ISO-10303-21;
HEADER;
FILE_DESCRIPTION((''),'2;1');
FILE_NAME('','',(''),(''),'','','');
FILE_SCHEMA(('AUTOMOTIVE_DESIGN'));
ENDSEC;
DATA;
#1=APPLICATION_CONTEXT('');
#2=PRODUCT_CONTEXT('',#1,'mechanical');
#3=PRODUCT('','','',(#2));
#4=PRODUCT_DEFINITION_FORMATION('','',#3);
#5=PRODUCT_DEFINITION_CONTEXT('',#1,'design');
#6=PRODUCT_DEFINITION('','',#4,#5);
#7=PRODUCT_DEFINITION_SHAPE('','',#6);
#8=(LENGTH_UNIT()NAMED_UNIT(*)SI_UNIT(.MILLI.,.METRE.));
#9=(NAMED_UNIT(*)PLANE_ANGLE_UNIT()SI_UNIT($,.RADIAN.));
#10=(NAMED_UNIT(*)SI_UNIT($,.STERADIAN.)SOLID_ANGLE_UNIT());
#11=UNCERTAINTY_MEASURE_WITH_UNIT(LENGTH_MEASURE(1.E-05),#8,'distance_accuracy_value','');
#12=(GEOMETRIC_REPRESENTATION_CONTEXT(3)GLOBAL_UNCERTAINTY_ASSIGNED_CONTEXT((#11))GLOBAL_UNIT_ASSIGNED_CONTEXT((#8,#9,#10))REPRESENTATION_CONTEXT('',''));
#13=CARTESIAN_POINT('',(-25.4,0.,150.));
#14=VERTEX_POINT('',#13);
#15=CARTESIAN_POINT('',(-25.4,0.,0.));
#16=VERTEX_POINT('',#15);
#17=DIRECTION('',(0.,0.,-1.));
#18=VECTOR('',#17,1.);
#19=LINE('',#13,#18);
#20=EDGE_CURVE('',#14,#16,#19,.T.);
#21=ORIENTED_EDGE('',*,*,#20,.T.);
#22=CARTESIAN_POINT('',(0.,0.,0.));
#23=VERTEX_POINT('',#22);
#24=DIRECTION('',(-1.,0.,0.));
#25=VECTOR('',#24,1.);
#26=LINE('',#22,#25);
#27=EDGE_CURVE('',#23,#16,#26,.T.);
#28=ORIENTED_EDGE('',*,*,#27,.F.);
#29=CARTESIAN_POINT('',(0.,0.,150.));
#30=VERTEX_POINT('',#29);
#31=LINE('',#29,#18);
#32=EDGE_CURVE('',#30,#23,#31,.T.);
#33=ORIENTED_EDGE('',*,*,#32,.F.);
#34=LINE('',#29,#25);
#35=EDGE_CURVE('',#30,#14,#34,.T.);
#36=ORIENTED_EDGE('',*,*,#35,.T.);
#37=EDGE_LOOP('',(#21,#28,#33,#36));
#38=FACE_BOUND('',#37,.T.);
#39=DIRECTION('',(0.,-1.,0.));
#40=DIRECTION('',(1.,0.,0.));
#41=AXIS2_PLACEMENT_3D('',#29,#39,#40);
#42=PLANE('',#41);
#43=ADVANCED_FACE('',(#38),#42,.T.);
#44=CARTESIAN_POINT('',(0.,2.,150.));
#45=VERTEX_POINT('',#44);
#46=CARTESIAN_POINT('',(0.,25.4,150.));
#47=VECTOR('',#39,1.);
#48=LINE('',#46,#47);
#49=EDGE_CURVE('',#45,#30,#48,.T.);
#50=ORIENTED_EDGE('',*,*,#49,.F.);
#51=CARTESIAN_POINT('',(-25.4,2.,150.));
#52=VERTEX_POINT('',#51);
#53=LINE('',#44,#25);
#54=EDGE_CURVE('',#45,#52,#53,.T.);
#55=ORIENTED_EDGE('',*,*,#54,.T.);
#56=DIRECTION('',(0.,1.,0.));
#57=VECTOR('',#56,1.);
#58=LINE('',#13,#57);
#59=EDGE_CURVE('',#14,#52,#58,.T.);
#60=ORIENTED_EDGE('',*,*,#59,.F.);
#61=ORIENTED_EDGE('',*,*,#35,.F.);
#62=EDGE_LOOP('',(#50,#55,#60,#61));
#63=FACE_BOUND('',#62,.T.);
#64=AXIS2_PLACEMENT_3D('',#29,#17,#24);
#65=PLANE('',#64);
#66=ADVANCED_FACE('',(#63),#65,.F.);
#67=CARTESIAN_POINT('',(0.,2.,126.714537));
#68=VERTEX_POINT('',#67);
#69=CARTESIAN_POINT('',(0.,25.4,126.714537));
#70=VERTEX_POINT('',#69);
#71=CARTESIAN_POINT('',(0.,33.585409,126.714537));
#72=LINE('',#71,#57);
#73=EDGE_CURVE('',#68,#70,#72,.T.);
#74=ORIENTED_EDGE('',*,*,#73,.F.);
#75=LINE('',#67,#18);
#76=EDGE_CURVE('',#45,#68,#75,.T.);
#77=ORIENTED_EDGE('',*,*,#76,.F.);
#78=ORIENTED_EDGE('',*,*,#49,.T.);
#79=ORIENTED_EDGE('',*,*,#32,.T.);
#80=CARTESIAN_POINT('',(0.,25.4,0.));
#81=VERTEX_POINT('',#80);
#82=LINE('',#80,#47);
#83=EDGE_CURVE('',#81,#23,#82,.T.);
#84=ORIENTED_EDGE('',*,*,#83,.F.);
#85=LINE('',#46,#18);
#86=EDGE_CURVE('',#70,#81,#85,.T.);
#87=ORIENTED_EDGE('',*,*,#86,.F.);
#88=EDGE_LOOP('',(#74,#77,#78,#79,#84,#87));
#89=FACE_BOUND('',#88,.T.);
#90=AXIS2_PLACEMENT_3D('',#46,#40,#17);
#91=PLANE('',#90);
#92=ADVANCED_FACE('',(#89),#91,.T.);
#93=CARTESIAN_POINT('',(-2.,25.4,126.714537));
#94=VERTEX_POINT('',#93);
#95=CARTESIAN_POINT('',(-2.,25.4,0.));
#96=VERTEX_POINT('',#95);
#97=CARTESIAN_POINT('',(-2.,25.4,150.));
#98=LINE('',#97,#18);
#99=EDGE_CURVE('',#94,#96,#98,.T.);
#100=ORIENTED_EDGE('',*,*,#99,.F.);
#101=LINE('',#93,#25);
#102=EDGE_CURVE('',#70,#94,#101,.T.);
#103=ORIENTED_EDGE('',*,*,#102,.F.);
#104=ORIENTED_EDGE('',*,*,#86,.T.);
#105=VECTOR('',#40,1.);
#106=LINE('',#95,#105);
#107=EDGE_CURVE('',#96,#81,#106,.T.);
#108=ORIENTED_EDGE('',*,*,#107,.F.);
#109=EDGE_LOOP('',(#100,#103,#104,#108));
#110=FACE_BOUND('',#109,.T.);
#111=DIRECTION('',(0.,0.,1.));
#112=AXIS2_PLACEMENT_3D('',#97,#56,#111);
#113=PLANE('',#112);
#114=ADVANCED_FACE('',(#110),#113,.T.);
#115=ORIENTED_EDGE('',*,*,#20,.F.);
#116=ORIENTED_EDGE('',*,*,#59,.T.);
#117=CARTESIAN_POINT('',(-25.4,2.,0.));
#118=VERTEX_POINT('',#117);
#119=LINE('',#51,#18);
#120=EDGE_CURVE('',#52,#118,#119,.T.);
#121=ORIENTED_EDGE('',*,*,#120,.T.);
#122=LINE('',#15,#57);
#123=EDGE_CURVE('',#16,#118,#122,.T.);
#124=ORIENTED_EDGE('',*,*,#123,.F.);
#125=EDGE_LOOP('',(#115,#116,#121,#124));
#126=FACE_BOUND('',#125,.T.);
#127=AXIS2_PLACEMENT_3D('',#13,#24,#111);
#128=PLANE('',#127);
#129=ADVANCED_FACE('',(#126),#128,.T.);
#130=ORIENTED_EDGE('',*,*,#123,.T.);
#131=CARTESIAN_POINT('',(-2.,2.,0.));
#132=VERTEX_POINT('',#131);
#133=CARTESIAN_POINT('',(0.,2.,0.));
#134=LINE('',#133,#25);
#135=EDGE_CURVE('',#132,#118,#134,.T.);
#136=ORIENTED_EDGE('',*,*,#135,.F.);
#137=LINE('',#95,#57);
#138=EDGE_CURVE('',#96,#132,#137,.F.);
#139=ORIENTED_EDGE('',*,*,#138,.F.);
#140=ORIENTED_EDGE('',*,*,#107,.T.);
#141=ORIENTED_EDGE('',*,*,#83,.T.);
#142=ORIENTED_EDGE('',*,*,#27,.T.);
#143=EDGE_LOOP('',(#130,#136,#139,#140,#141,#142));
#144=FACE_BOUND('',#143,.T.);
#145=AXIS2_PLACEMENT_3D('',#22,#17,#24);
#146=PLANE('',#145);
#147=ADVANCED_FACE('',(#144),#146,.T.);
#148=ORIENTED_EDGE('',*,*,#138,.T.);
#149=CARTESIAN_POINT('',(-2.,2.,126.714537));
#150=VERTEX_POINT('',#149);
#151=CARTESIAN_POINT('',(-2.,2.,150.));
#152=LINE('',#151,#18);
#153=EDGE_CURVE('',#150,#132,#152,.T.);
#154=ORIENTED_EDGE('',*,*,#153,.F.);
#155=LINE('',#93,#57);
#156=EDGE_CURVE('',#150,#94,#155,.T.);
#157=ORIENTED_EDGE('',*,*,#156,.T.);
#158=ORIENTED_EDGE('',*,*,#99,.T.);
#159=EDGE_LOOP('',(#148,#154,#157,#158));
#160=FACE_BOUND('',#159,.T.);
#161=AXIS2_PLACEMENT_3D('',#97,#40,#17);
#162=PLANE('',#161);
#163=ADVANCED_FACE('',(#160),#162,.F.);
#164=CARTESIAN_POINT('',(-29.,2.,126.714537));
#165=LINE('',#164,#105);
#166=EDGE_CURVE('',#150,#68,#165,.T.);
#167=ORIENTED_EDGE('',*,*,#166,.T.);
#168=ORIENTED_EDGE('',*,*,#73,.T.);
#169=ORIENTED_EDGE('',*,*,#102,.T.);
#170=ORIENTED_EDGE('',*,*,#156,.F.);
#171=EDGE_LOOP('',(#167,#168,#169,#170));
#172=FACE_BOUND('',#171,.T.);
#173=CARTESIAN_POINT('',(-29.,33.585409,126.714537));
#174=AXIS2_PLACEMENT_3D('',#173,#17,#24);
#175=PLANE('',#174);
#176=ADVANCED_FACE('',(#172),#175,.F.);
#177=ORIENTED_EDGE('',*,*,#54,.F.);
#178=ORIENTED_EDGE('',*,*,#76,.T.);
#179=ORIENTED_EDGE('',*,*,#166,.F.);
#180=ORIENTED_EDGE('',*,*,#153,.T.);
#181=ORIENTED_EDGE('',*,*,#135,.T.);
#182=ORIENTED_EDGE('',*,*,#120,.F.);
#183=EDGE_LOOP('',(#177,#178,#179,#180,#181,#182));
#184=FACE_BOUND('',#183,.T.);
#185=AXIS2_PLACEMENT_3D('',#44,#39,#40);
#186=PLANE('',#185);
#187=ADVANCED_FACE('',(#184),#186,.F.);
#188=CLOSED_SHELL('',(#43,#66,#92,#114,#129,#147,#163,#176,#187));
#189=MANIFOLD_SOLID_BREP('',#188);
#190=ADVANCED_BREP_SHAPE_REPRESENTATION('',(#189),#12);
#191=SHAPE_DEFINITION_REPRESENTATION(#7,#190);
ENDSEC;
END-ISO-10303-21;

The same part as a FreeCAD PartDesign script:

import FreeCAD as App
import Part
import Sketcher

V = App.Vector


def add_polygon(sketch, points):
    """Adds a closed chain of lines whose ends are joined by coincident constraints."""
    first, n = sketch.GeometryCount, len(points)
    for a, b in zip(points, points[1:] + points[:1]):
        sketch.addGeometry(Part.LineSegment(App.Vector(*a, 0), App.Vector(*b, 0)), False)
    for i in range(n):
        sketch.addConstraint(Sketcher.Constraint("Coincident", first + i, 2, first + (i + 1) % n, 1))

doc = App.newDocument("Part")
body = doc.addObject("PartDesign::Body", "Body")

# Sketch on XY plane
sketch1 = doc.addObject("Sketcher::SketchObject", "Sketch")
body.addObject(sketch1)
sketch1.AttachmentSupport = (doc.XY_Plane, [""])
sketch1.MapMode = "FlatFace"
add_polygon(sketch1, [(0, 0), (0, 25.4), (-2, 25.4), (-2, 2), (-25.4, 2), (-25.4, 0)])  # lines 0-5
sketch1.addConstraint([
    Sketcher.Constraint("Vertical", 0),
    Sketcher.Constraint("Horizontal", 1),
    Sketcher.Constraint("Vertical", 2),
    Sketcher.Constraint("Horizontal", 3),
    Sketcher.Constraint("Vertical", 4),
    Sketcher.Constraint("Horizontal", 5),
    Sketcher.Constraint("Coincident", 5, 2, -1, 1),
    Sketcher.Constraint("Equal", 5, 0),
    Sketcher.Constraint("Equal", 3, 2),
    Sketcher.Constraint("DistanceX", 1, 2, 1, 1, 2.0),
    Sketcher.Constraint("DistanceX", 3, 2, 3, 1, 23.4),
])
pad1 = doc.addObject("PartDesign::Pad", "Pad")
body.addObject(pad1)
pad1.Profile = sketch1
pad1.Length = 150

# Sketch on YZ plane
sketch2 = doc.addObject("Sketcher::SketchObject", "Sketch001")
body.addObject(sketch2)
sketch2.AttachmentSupport = (doc.YZ_Plane, [""])
sketch2.MapMode = "FlatFace"
add_polygon(sketch2, [(34, 172), (2, 172), (2, 127), (34, 127)])  # lines 0-3
sketch2.addConstraint([
    Sketcher.Constraint("Horizontal", 0),
    Sketcher.Constraint("Vertical", 1),
    Sketcher.Constraint("Horizontal", 2),
    Sketcher.Constraint("Vertical", 3),
    Sketcher.Constraint("DistanceX", -1, 1, 0, 2, 2.0),
    Sketcher.Constraint("DistanceX", 0, 2, 0, 1, 31.585409),
    Sketcher.Constraint("DistanceY", 1, 2, 1, 1, 45.11871),
    Sketcher.Constraint("DistanceY", -1, 1, 0, 2, 171.833247),
])
pocket1 = doc.addObject("PartDesign::Pocket", "Pocket")
body.addObject(pocket1)
pocket1.Profile = sketch2
pocket1.Length = 29

doc.recompute()
